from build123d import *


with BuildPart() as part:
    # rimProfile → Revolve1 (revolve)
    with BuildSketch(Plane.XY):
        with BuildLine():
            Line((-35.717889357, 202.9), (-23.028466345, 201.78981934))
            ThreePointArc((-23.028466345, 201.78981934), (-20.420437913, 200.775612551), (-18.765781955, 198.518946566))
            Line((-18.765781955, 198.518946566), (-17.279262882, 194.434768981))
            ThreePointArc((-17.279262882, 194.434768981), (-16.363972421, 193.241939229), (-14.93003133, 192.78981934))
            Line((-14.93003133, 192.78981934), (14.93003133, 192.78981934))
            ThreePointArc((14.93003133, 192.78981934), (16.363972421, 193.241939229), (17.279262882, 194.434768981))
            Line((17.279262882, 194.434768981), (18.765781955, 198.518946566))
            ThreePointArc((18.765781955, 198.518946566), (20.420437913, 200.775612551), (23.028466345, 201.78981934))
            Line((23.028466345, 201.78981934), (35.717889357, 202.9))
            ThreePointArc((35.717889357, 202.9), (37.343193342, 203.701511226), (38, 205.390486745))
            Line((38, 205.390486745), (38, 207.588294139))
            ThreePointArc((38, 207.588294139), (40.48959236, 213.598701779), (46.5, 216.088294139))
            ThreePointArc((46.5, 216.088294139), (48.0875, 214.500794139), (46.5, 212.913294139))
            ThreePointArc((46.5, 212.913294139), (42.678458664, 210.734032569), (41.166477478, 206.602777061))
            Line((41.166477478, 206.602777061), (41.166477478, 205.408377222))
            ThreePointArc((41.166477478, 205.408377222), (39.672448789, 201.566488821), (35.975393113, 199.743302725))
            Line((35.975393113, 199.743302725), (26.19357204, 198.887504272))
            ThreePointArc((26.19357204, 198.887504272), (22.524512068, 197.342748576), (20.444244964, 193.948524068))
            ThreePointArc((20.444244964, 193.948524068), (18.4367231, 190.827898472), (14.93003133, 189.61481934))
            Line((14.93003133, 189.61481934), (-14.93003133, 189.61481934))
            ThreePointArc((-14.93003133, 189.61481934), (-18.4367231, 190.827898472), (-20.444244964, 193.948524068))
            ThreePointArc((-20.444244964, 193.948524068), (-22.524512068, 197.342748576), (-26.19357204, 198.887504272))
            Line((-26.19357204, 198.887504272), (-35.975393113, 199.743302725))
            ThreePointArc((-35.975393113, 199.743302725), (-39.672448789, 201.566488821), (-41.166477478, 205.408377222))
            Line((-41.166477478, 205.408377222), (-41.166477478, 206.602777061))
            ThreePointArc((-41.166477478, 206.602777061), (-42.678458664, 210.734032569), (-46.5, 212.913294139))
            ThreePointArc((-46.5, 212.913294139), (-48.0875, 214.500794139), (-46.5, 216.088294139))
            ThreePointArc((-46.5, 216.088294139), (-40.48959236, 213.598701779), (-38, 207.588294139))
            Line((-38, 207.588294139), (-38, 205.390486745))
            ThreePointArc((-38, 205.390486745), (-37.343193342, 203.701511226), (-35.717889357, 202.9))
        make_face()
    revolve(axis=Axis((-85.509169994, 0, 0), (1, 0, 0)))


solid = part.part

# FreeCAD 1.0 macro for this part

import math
import FreeCAD as App
import Part
import Sketcher
from FreeCAD import Vector
Q = App.Units.Quantity

doc = App.newDocument("Part")
params = doc.addObject("Spreadsheet::Sheet", "Params")
for row, (alias, value) in enumerate([
    ("sketch1_radius", "5 mm"),
    ("sketch1_radius2", "2.5 mm"),
    ("sketch1_radius3", "8.5 mm"),
    ("sketch1_radius4", "6.4 mm"),
    ("sketch1_radius5", "6.5 mm"),
    ("revolution_angle", "360 deg"),
], start=1):
    params.set(f"A{row}", alias)
    params.set(f"B{row}", "=" + value)
    params.setAlias(f"B{row}", alias)

body = doc.addObject("PartDesign::Body", "Body")

# Sketch on XY plane
sketch1 = body.newObject("Sketcher::SketchObject", "Sketch")
sketch1.AttachmentSupport = (doc.getObject("XY_Plane"), [""])
sketch1.MapMode = "FlatFace"
sketch1.addGeometry([
    Part.LineSegment(Vector(-23, 201.8, 0), Vector(-35.7, 202.9, 0)),  # 0
    Part.ArcOfCircle(Part.Circle(Vector(-35.5, 205.4, 0), Vector(0, 0, 1), 2.5), math.radians(180), math.radians(265)),  # 1
    Part.LineSegment(Vector(-38, 205.4, 0), Vector(-38, 207.6, 0)),  # 2
    Part.ArcOfCircle(Part.Circle(Vector(-46.5, 207.6, 0), Vector(0, 0, 1), 8.5), math.radians(0), math.radians(90)),  # 3
    Part.ArcOfCircle(Part.Circle(Vector(-46.5, 214.5, 0), Vector(0, 0, 1), 1.6), math.radians(90), math.radians(270)),  # 4
    Part.ArcOfCircle(Part.Circle(Vector(-47.6, 206.6, 0), Vector(0, 0, 1), 6.4), math.radians(0), math.radians(80)),  # 5
    Part.LineSegment(Vector(-41.2, 206.6, 0), Vector(-41.2, 205.4, 0)),  # 6
    Part.ArcOfCircle(Part.Circle(Vector(-35.5, 205.4, 0), Vector(0, 0, 1), 5.7), math.radians(180), math.radians(265)),  # 7
    Part.LineSegment(Vector(-36, 199.7, 0), Vector(-26.2, 198.9, 0)),  # 8
    Part.ArcOfCircle(Part.Circle(Vector(-26.8, 192.4, 0), Vector(0, 0, 1), 6.5), math.radians(14), math.radians(85)),  # 9
    Part.ArcOfCircle(Part.Circle(Vector(-14.9, 195.3, 0), Vector(0, 0, 1), 5.7), math.radians(-166), math.radians(-90)),  # 10
    Part.LineSegment(Vector(-14.9, 189.6, 0), Vector(14.9, 189.6, 0)),  # 11
    Part.ArcOfCircle(Part.Circle(Vector(14.9, 195.3, 0), Vector(0, 0, 1), 5.7), math.radians(-90), math.radians(-14)),  # 12
    Part.ArcOfCircle(Part.Circle(Vector(26.8, 192.4, 0), Vector(0, 0, 1), 6.5), math.radians(95), math.radians(166)),  # 13
    Part.LineSegment(Vector(26.2, 198.9, 0), Vector(36, 199.7, 0)),  # 14
    Part.ArcOfCircle(Part.Circle(Vector(35.5, 205.4, 0), Vector(0, 0, 1), 5.7), math.radians(-85), math.radians(0)),  # 15
    Part.LineSegment(Vector(41.2, 205.4, 0), Vector(41.2, 206.6, 0)),  # 16
    Part.ArcOfCircle(Part.Circle(Vector(47.6, 206.6, 0), Vector(0, 0, 1), 6.4), math.radians(100), math.radians(180)),  # 17
    Part.ArcOfCircle(Part.Circle(Vector(46.5, 214.5, 0), Vector(0, 0, 1), 1.6), math.radians(-90), math.radians(90)),  # 18
    Part.ArcOfCircle(Part.Circle(Vector(46.5, 207.6, 0), Vector(0, 0, 1), 8.5), math.radians(90), math.radians(180)),  # 19
    Part.LineSegment(Vector(38, 207.6, 0), Vector(38, 205.4, 0)),  # 20
    Part.ArcOfCircle(Part.Circle(Vector(35.5, 205.4, 0), Vector(0, 0, 1), 2.5), math.radians(-85), math.radians(0)),  # 21
    Part.LineSegment(Vector(35.7, 202.9, 0), Vector(23, 201.8, 0)),  # 22
    Part.ArcOfCircle(Part.Circle(Vector(23.5, 196.8, 0), Vector(0, 0, 1), 5), math.radians(95), math.radians(160)),  # 23
    Part.LineSegment(Vector(18.8, 198.5, 0), Vector(17.3, 194.4, 0)),  # 24
    Part.ArcOfCircle(Part.Circle(Vector(14.9, 195.3, 0), Vector(0, 0, 1), 2.5), math.radians(-90), math.radians(-20)),  # 25
    Part.LineSegment(Vector(14.9, 192.8, 0), Vector(-14.9, 192.8, 0)),  # 26
    Part.ArcOfCircle(Part.Circle(Vector(-14.9, 195.3, 0), Vector(0, 0, 1), 2.5), math.radians(-160), math.radians(-90)),  # 27
    Part.LineSegment(Vector(-17.3, 194.4, 0), Vector(-18.8, 198.5, 0)),  # 28
    Part.ArcOfCircle(Part.Circle(Vector(-23.5, 196.8, 0), Vector(0, 0, 1), 5), math.radians(20), math.radians(85)),  # 29
], False)
sketch1.addConstraint([
    Sketcher.Constraint("Tangent", 0, 2, 1, 2),
    Sketcher.Constraint("Tangent", 1, 1, 2, 1),
    Sketcher.Constraint("Tangent", 2, 2, 3, 1),
    Sketcher.Constraint("Tangent", 3, 2, 4, 1),
    Sketcher.Constraint("Coincident", 4, 2, 5, 2),
    Sketcher.Constraint("Tangent", 5, 1, 6, 1),
    Sketcher.Constraint("Tangent", 6, 2, 7, 1),
    Sketcher.Constraint("Tangent", 7, 2, 8, 1),
    Sketcher.Constraint("Tangent", 8, 2, 9, 2),
    Sketcher.Constraint("Tangent", 9, 1, 10, 1),
    Sketcher.Constraint("Tangent", 10, 2, 11, 1),
    Sketcher.Constraint("Tangent", 11, 2, 12, 1),
    Sketcher.Constraint("Tangent", 12, 2, 13, 2),
    Sketcher.Constraint("Tangent", 13, 1, 14, 1),
    Sketcher.Constraint("Tangent", 14, 2, 15, 1),
    Sketcher.Constraint("Tangent", 15, 2, 16, 1),
    Sketcher.Constraint("Tangent", 16, 2, 17, 2),
    Sketcher.Constraint("Coincident", 17, 1, 18, 1),
    Sketcher.Constraint("Tangent", 18, 2, 19, 1),
    Sketcher.Constraint("Tangent", 19, 2, 20, 1),
    Sketcher.Constraint("Tangent", 20, 2, 21, 2),
    Sketcher.Constraint("Tangent", 21, 1, 22, 1),
    Sketcher.Constraint("Tangent", 22, 2, 23, 1),
    Sketcher.Constraint("Tangent", 23, 2, 24, 1),
    Sketcher.Constraint("Tangent", 24, 2, 25, 2),
    Sketcher.Constraint("Tangent", 25, 1, 26, 1),
    Sketcher.Constraint("Tangent", 26, 2, 27, 2),
    Sketcher.Constraint("Tangent", 27, 1, 28, 1),
    Sketcher.Constraint("Tangent", 28, 2, 29, 1),
    Sketcher.Constraint("Tangent", 29, 2, 0, 1),
    Sketcher.Constraint("Vertical", 2),
    Sketcher.Constraint("Vertical", 6),
    Sketcher.Constraint("Horizontal", 11),
    Sketcher.Constraint("Vertical", 16),
    Sketcher.Constraint("Vertical", 20),
    Sketcher.Constraint("Horizontal", 26),
    Sketcher.Constraint("Coincident", 25, 3, 12, 3),
    Sketcher.Constraint("Coincident", 27, 3, 10, 3),
    Sketcher.Constraint("Equal", 10, 12),
    Sketcher.Constraint("Equal", 9, 13),
    Sketcher.Constraint("Equal", 7, 15),
    Sketcher.Constraint("Equal", 5, 17),
    Sketcher.Constraint("Equal", 4, 18),
    Sketcher.Constraint("Equal", 3, 19),
    Sketcher.Constraint("Equal", 1, 21),
    Sketcher.Constraint("Equal", 21, 25),
    Sketcher.Constraint("Equal", 23, 29),
    Sketcher.Constraint("Symmetric", 9, 3, 13, 3, -2),
    Sketcher.Constraint("Symmetric", 7, 3, 15, 3, -2),
    Sketcher.Constraint("Symmetric", 4, 3, 18, 3, -2),
    Sketcher.Constraint("Symmetric", 1, 3, 21, 3, -2),
    Sketcher.Constraint("Symmetric", 23, 3, 29, 3, -2),
    Sketcher.Constraint("Parallel", 0, 8),
    Sketcher.Constraint("Horizontal", 5, 3, 17, 3),
    Sketcher.Constraint("Vertical", 3, 3, 4, 3),
    Sketcher.Constraint("Vertical", 3, 2, 4, 2),
    Sketcher.Constraint("Radius", 23, 5.0),
    Sketcher.Constraint("Radius", 1, 2.5),
    Sketcher.Constraint("Radius", 3, 8.5),
    Sketcher.Constraint("Radius", 5, 6.4),
    Sketcher.Constraint("Radius", 9, 6.5),
    Sketcher.Constraint("Angle", 0, Q("175 deg")),
    Sketcher.Constraint("Angle", 24, Q("-110 deg")),
    Sketcher.Constraint("DistanceX", 1, 1, -1, 1, 38.0),
    Sketcher.Constraint("Radius", 10, 5.675),
    Sketcher.Constraint("DistanceY", -1, 1, 0, 2, 202.9),
    Sketcher.Constraint("Radius", 4, 1.5875),
    Sketcher.Constraint("DistanceY", 12, 3, 22, 2, 6.5),
    Sketcher.Constraint("DistanceX", 29, 3, 9, 1, 3.02),
    Sketcher.Constraint("DistanceY", 6, 2, 6, 1, 1.1944),
    Sketcher.Constraint("Radius", 7, 5.686714),
    Sketcher.Constraint("DistanceY", 8, 2, 7, 2, 0.855798),
    Sketcher.Constraint("DistanceX", 11, 1, 11, 2, 29.860063),
])
sketch1.setExpression("Constraints[56]", "Params.sketch1_radius")
sketch1.setExpression("Constraints[57]", "Params.sketch1_radius2")
sketch1.setExpression("Constraints[58]", "Params.sketch1_radius3")
sketch1.setExpression("Constraints[59]", "Params.sketch1_radius4")
sketch1.setExpression("Constraints[60]", "Params.sketch1_radius5")
revolution = body.newObject("PartDesign::Revolution", "Revolution")
revolution.Profile = sketch1
revolution.ReferenceAxis = (sketch1, ["H_Axis"])
revolution.setExpression("Angle", "Params.revolution_angle")

doc.recompute()
